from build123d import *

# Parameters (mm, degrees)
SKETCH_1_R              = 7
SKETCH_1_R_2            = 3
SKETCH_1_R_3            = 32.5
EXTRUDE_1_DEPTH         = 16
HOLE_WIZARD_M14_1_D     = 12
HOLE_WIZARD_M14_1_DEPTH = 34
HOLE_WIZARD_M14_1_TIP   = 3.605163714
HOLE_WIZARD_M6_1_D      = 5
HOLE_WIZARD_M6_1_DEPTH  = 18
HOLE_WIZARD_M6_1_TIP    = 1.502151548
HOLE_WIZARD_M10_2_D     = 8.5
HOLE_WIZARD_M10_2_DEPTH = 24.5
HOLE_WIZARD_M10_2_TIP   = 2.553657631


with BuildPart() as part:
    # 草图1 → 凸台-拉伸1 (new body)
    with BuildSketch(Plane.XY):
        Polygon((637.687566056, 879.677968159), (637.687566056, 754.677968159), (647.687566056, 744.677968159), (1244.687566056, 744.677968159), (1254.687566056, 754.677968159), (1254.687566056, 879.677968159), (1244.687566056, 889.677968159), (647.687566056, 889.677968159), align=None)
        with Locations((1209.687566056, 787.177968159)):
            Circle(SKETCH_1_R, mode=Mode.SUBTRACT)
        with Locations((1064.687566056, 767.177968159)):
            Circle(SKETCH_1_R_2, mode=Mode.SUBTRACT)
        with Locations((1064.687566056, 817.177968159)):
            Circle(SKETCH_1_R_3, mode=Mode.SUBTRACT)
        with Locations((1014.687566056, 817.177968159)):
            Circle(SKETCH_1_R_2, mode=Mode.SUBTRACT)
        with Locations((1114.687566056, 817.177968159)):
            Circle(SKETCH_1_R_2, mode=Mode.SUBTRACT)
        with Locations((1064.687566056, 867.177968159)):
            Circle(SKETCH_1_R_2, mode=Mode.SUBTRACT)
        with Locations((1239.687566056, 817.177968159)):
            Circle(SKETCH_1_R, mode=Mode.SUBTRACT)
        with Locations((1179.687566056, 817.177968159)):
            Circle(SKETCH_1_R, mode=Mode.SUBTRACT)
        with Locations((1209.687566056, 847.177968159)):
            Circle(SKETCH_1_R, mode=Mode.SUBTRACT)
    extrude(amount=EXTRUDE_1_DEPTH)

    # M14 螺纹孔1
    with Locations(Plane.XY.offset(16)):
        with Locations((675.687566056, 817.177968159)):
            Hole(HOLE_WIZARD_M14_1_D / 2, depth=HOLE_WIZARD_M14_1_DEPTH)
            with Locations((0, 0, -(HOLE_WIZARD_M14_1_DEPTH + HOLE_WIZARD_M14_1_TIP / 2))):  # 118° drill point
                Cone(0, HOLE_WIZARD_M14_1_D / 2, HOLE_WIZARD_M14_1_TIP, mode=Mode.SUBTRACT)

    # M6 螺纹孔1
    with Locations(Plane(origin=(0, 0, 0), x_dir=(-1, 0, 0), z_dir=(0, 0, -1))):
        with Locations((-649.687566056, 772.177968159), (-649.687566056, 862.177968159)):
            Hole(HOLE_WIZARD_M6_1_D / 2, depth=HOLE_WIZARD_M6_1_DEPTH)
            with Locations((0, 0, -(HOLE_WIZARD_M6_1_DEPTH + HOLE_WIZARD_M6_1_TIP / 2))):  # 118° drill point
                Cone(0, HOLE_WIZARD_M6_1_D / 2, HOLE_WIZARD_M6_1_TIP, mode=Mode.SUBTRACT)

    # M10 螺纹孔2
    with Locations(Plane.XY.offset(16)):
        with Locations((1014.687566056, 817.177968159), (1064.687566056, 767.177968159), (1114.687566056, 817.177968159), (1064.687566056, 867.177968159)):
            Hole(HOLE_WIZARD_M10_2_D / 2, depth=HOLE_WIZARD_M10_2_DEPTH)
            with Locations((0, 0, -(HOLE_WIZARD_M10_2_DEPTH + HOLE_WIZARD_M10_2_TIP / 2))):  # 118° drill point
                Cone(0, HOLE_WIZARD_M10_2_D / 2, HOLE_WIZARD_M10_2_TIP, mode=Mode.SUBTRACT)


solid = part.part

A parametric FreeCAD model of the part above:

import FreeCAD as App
import Part
import Sketcher

doc = App.newDocument("Part")
body = doc.addObject("PartDesign::Body", "Body")

sketch1 = body.newObject("Sketcher::SketchObject", "Sketch")
sketch1.AttachmentSupport = (doc.getObject("XY_Plane"), [""])
sketch1.MapMode = "FlatFace"
sketch1.addGeometry([
    Part.LineSegment(App.Vector(637.687566, 879.677968, 0), App.Vector(637.687566, 754.677968, 0)),
    Part.LineSegment(App.Vector(637.687566, 754.677968, 0), App.Vector(647.687566, 744.677968, 0)),
    Part.LineSegment(App.Vector(647.687566, 744.677968, 0), App.Vector(1244.687566, 744.677968, 0)),
    Part.LineSegment(App.Vector(1244.687566, 744.677968, 0), App.Vector(1254.687566, 754.677968, 0)),
    Part.LineSegment(App.Vector(1254.687566, 754.677968, 0), App.Vector(1254.687566, 879.677968, 0)),
    Part.LineSegment(App.Vector(1254.687566, 879.677968, 0), App.Vector(1244.687566, 889.677968, 0)),
    Part.LineSegment(App.Vector(1244.687566, 889.677968, 0), App.Vector(647.687566, 889.677968, 0)),
    Part.LineSegment(App.Vector(647.687566, 889.677968, 0), App.Vector(637.687566, 879.677968, 0)),
    Part.Circle(App.Vector(1064.687566, 767.177968, 0), App.Vector(0, 0, 1), 3),
    Part.Circle(App.Vector(1209.687566, 787.177968, 0), App.Vector(0, 0, 1), 7),
    Part.Circle(App.Vector(1014.687566, 817.177968, 0), App.Vector(0, 0, 1), 3),
    Part.Circle(App.Vector(1064.687566, 817.177968, 0), App.Vector(0, 0, 1), 32.5),
    Part.Circle(App.Vector(1114.687566, 817.177968, 0), App.Vector(0, 0, 1), 3),
    Part.Circle(App.Vector(1064.687566, 867.177968, 0), App.Vector(0, 0, 1), 3),
    Part.Circle(App.Vector(1179.687566, 817.177968, 0), App.Vector(0, 0, 1), 7),
    Part.Circle(App.Vector(1239.687566, 817.177968, 0), App.Vector(0, 0, 1), 7),
    Part.Circle(App.Vector(1209.687566, 847.177968, 0), App.Vector(0, 0, 1), 7),
], False)
sketch1.addConstraint([
    Sketcher.Constraint("Coincident", 0, 2, 1, 1),
    Sketcher.Constraint("Coincident", 1, 2, 2, 1),
    Sketcher.Constraint("Coincident", 2, 2, 3, 1),
    Sketcher.Constraint("Coincident", 3, 2, 4, 1),
    Sketcher.Constraint("Coincident", 4, 2, 5, 1),
    Sketcher.Constraint("Coincident", 5, 2, 6, 1),
    Sketcher.Constraint("Coincident", 6, 2, 7, 1),
    Sketcher.Constraint("Coincident", 7, 2, 0, 1),
    Sketcher.Constraint("Vertical", 0),
    Sketcher.Constraint("Horizontal", 2),
    Sketcher.Constraint("Vertical", 4),
    Sketcher.Constraint("Horizontal", 6),
    Sketcher.Constraint("Equal", 8, 10),
    Sketcher.Constraint("Equal", 10, 12),
    Sketcher.Constraint("Equal", 12, 13),
    Sketcher.Constraint("Equal", 9, 14),
    Sketcher.Constraint("Equal", 14, 15),
    Sketcher.Constraint("Equal", 15, 16),
    Sketcher.Constraint("Perpendicular", 1, 3),
    Sketcher.Constraint("Perpendicular", 3, 5),
    Sketcher.Constraint("Perpendicular", 5, 7),
    Sketcher.Constraint("Horizontal", 10, 3, 11, 3),
    Sketcher.Constraint("Horizontal", 11, 3, 12, 3),
    Sketcher.Constraint("Horizontal", 12, 3, 14, 3),
    Sketcher.Constraint("Horizontal", 14, 3, 15, 3),
    Sketcher.Constraint("Horizontal", 0, 2, 3, 2),
    Sketcher.Constraint("Horizontal", 4, 2, 7, 2),
    Sketcher.Constraint("Vertical", 8, 3, 11, 3),
    Sketcher.Constraint("Vertical", 11, 3, 13, 3),
    Sketcher.Constraint("Vertical", 9, 3, 16, 3),
    Sketcher.Constraint("Vertical", 2, 2, 5, 2),
    Sketcher.Constraint("Vertical", 1, 2, 6, 2),
    Sketcher.Constraint("Diameter", 8, 6.0),
    Sketcher.Constraint("Diameter", 9, 14.0),
    Sketcher.Constraint("Diameter", 11, 65.0),
    Sketcher.Constraint("DistanceX", 2, 1, 2, 2, 597.0),
    Sketcher.Constraint("DistanceY", 0, 2, 0, 1, 125.0),
    Sketcher.Constraint("DistanceX", 8, 3, 9, 3, 145.0),
    Sketcher.Constraint("DistanceY", 8, 3, 9, 3, 20.0),
    Sketcher.Constraint("DistanceX", 10, 3, 8, 3, 50.0),
    Sketcher.Constraint("DistanceY", 8, 3, 10, 3, 50.0),
    Sketcher.Constraint("DistanceX", 11, 3, 12, 3, 50.0),
    Sketcher.Constraint("DistanceY", 11, 3, 13, 3, 50.0),
    Sketcher.Constraint("DistanceX", 14, 3, 9, 3, 30.0),
    Sketcher.Constraint("DistanceX", 9, 3, 15, 3, 30.0),
    Sketcher.Constraint("DistanceY", 14, 3, 16, 3, 30.0),
    Sketcher.Constraint("DistanceX", 0, 2, 10, 3, 377.0),
    Sketcher.Constraint("DistanceX", 0, 2, 1, 2, 10.0),
    Sketcher.Constraint("DistanceY", 0, 2, 10, 3, 62.5),
    Sketcher.Constraint("DistanceY", -1, 1, 8, 3, 767.177968),
    Sketcher.Constraint("DistanceX", -1, 1, 8, 3, 1064.687566),
])
pad1 = body.newObject("PartDesign::Pad", "Pad")
pad1.Profile = sketch1
pad1.Length = 16

sketch2 = body.newObject("Sketcher::SketchObject", "Sketch001")
sketch2.AttachmentSupport = (doc.getObject("XY_Plane"), [""])
sketch2.MapMode = "FlatFace"
sketch2.AttachmentOffset = App.Placement(App.Vector(0, 0, 16), App.Rotation())
sketch2.addGeometry(Part.Circle(App.Vector(675.687566, 817.177968, 0), App.Vector(0, 0, 1), 6), False)
sketch2.addConstraint([
    Sketcher.Constraint("Diameter", 0, 12.0),
    Sketcher.Constraint("DistanceY", -1, 1, 0, 3, 817.177968),
    Sketcher.Constraint("DistanceX", -1, 1, 0, 3, 675.687566),
])
doc.recompute()
hole = body.newObject("PartDesign::Hole", "Hole")
hole.Profile = sketch2
hole.ThreadType = "None"
hole.Diameter = 12
hole.DepthType = "Dimension"
hole.Depth = 34
hole.DrillPoint = "Angled"
hole.DrillPointAngle = 118

sketch3 = body.newObject("Sketcher::SketchObject", "Sketch002")
sketch3.AttachmentSupport = (doc.getObject("XY_Plane"), [""])
sketch3.MapMode = "FlatFace"
sketch3.addGeometry([
    Part.Circle(App.Vector(649.687566, 772.177968, 0), App.Vector(0, 0, 1), 2.5),
    Part.Circle(App.Vector(649.687566, 862.177968, 0), App.Vector(0, 0, 1), 2.5),
], False)
sketch3.addConstraint([
    Sketcher.Constraint("Equal", 0, 1),
    Sketcher.Constraint("Vertical", 0, 3, 1, 3),
    Sketcher.Constraint("Diameter", 0, 5.0),
    Sketcher.Constraint("DistanceY", 0, 3, 1, 3, 90.0),
    Sketcher.Constraint("DistanceY", -1, 1, 0, 3, 772.177968),
    Sketcher.Constraint("DistanceX", -1, 1, 0, 3, 649.687566),
])
doc.recompute()
hole2 = body.newObject("PartDesign::Hole", "Hole001")
hole2.Profile = sketch3
hole2.ThreadType = "None"
hole2.Diameter = 5
hole2.DepthType = "Dimension"
hole2.Depth = 18
hole2.DrillPoint = "Angled"
hole2.DrillPointAngle = 118
hole2.Reversed = True

sketch4 = body.newObject("Sketcher::SketchObject", "Sketch003")
sketch4.AttachmentSupport = (doc.getObject("XY_Plane"), [""])
sketch4.MapMode = "FlatFace"
sketch4.AttachmentOffset = App.Placement(App.Vector(0, 0, 16), App.Rotation())
sketch4.addGeometry([
    Part.Circle(App.Vector(1014.687566, 817.177968, 0), App.Vector(0, 0, 1), 4.25),
    Part.Circle(App.Vector(1064.687566, 767.177968, 0), App.Vector(0, 0, 1), 4.25),
    Part.Circle(App.Vector(1114.687566, 817.177968, 0), App.Vector(0, 0, 1), 4.25),
    Part.Circle(App.Vector(1064.687566, 867.177968, 0), App.Vector(0, 0, 1), 4.25),
], False)
sketch4.addConstraint([
    Sketcher.Constraint("Equal", 0, 1),
    Sketcher.Constraint("Equal", 1, 2),
    Sketcher.Constraint("Equal", 2, 3),
    Sketcher.Constraint("Horizontal", 0, 3, 2, 3),
    Sketcher.Constraint("Vertical", 1, 3, 3, 3),
    Sketcher.Constraint("Diameter", 0, 8.5),
    Sketcher.Constraint("DistanceX", 0, 3, 1, 3, 50.0),
    Sketcher.Constraint("DistanceY", 1, 3, 0, 3, 50.0),
    Sketcher.Constraint("DistanceX", 1, 3, 2, 3, 50.0),
    Sketcher.Constraint("DistanceY", 0, 3, 3, 3, 50.0),
    Sketcher.Constraint("DistanceY", -1, 1, 0, 3, 817.177968),
    Sketcher.Constraint("DistanceX", -1, 1, 0, 3, 1014.687566),
])
doc.recompute()
hole3 = body.newObject("PartDesign::Hole", "Hole002")
hole3.Profile = sketch4
hole3.ThreadType = "None"
hole3.Diameter = 8.5
hole3.DepthType = "Dimension"
hole3.Depth = 24.5
hole3.DrillPoint = "Angled"
hole3.DrillPointAngle = 118

doc.recompute()
